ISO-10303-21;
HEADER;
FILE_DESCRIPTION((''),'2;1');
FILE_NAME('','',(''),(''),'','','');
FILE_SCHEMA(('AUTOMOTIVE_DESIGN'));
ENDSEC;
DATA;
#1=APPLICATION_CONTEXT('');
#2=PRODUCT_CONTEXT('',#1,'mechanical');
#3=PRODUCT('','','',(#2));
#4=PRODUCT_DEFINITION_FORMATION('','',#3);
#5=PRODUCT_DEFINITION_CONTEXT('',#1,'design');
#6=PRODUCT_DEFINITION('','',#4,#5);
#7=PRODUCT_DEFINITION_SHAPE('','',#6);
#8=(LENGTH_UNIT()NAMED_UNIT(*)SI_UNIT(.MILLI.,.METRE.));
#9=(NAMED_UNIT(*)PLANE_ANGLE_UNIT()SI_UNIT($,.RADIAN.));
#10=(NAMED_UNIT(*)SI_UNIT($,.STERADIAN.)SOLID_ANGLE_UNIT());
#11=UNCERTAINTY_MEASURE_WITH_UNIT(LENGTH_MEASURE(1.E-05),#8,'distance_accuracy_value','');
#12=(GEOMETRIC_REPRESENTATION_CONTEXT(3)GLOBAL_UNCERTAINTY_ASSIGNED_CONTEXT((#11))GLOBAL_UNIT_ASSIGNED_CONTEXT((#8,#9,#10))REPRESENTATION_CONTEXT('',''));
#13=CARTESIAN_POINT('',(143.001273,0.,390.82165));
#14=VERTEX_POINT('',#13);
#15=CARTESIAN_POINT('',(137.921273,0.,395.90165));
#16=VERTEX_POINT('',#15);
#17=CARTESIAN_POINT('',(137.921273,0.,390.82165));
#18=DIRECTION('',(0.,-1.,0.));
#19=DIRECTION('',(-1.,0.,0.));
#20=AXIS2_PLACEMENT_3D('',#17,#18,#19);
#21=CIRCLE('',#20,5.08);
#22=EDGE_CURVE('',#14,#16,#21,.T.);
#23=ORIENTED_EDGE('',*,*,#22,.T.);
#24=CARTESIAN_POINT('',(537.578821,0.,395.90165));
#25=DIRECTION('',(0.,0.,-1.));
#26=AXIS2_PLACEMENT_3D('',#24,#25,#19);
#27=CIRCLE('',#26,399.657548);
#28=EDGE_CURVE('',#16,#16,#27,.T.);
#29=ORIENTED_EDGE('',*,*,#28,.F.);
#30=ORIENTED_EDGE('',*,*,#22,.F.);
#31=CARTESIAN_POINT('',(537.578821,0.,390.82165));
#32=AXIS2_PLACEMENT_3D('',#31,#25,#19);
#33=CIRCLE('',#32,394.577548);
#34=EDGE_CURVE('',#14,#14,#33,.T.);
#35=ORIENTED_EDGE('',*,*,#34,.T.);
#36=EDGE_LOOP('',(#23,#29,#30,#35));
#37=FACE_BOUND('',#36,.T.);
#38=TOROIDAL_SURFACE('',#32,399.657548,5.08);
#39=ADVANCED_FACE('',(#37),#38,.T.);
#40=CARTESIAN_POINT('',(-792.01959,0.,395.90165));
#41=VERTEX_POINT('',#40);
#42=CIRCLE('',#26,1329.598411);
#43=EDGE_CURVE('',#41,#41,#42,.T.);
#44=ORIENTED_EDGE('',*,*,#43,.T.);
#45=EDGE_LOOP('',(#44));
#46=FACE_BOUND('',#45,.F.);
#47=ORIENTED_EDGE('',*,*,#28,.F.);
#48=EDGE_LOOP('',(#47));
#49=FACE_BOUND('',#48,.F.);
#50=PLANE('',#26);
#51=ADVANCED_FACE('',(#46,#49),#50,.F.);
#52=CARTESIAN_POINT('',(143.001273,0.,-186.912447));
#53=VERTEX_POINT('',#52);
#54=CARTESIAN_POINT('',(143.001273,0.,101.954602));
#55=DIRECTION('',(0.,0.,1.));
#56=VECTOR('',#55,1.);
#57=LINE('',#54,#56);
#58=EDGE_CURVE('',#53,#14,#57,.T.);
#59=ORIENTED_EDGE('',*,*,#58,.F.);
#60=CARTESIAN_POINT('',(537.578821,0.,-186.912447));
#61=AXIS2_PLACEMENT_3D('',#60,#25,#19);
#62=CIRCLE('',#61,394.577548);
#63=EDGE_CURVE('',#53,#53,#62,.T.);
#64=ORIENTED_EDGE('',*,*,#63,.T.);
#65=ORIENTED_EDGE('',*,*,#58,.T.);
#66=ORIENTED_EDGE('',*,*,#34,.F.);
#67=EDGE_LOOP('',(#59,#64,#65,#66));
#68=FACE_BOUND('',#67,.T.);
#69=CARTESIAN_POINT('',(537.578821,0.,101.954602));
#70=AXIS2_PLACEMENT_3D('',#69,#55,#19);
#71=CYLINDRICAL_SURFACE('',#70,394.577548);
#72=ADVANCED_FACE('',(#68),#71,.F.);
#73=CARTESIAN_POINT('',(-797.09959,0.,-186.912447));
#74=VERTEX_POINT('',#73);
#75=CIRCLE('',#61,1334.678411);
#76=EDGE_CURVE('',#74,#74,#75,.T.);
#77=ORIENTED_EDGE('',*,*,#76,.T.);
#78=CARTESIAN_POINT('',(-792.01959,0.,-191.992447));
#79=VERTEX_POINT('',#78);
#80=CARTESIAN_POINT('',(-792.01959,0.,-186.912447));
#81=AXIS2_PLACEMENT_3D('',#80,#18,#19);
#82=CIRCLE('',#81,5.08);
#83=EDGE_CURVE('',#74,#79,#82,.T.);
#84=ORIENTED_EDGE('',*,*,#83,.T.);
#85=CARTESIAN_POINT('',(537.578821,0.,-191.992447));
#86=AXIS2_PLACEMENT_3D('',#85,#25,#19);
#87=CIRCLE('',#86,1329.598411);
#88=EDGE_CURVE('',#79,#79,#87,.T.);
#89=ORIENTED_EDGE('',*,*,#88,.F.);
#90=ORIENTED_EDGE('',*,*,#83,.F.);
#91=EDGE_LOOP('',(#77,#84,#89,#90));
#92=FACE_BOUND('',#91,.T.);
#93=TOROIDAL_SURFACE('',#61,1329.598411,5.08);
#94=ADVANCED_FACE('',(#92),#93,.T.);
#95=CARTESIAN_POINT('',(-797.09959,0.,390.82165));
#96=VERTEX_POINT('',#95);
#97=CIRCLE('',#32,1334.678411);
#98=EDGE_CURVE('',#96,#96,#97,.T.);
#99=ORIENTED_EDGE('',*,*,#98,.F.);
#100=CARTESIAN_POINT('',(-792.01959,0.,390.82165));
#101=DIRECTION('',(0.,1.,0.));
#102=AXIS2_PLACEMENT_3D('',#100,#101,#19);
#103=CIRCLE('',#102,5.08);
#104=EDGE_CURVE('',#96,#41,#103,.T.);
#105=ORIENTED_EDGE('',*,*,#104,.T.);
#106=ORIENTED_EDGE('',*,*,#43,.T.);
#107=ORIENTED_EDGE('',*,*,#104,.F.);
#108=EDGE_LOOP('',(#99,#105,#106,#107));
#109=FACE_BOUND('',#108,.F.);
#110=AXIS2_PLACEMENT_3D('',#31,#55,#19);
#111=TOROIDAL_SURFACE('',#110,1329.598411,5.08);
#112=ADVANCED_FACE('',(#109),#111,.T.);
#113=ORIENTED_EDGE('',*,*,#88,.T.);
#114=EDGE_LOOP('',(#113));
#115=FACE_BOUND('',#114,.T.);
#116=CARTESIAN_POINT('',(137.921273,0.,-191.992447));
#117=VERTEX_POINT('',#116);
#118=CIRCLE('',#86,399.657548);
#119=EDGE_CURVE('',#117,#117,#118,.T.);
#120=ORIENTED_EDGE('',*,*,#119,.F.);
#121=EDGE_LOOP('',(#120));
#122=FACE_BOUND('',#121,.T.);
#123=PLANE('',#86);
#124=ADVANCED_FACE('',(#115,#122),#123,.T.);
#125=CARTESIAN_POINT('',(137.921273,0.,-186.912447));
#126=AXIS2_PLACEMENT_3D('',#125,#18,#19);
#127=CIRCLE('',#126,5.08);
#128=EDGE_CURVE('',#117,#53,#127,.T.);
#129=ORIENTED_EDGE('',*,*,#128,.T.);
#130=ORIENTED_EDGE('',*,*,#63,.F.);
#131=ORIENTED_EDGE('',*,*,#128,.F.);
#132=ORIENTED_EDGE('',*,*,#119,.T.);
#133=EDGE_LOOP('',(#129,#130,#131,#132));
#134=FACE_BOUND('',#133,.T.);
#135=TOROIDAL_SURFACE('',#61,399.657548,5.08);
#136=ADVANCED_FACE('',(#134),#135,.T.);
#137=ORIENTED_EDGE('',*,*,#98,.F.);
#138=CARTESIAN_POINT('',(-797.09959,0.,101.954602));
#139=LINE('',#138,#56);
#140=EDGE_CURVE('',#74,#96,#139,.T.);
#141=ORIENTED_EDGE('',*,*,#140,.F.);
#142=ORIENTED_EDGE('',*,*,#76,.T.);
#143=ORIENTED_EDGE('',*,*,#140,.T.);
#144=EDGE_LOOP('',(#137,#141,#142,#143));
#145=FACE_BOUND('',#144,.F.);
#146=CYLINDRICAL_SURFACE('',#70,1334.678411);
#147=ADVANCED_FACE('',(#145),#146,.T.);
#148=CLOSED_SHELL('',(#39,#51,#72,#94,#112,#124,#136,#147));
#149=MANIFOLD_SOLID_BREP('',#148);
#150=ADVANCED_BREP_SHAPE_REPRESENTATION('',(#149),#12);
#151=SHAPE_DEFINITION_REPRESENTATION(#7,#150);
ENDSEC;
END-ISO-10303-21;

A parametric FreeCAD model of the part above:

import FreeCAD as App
import Part
import Sketcher
Q = App.Units.Quantity

doc = App.newDocument("Part")
body = doc.addObject("PartDesign::Body", "Body")

# Sketch on XZ plane
sketch1 = body.newObject("Sketcher::SketchObject", "Sketch")
sketch1.AttachmentSupport = (doc.getObject("XZ_Plane"), [""])
sketch1.MapMode = "FlatFace"
sketch1.addGeometry(Part.LineSegment(App.Vector(-797, 396, 0), App.Vector(-797, -192, 0)), False)
sketch1.addGeometry(Part.LineSegment(App.Vector(-797, -192, 0), App.Vector(143, -192, 0)), False)
sketch1.addGeometry(Part.LineSegment(App.Vector(143, -192, 0), App.Vector(143, 396, 0)), False)
sketch1.addGeometry(Part.LineSegment(App.Vector(143, 396, 0), App.Vector(-797, 396, 0)), False)
sketch1.addGeometry(Part.LineSegment(App.Vector(538, 396, 0), App.Vector(538, -192, 0)), True)  # axis
sketch1.addConstraint(Sketcher.Constraint("Coincident", 0, 2, 1, 1))
sketch1.addConstraint(Sketcher.Constraint("Coincident", 1, 2, 2, 1))
sketch1.addConstraint(Sketcher.Constraint("Coincident", 2, 2, 3, 1))
sketch1.addConstraint(Sketcher.Constraint("Coincident", 3, 2, 0, 1))
sketch1.addConstraint(Sketcher.Constraint("Vertical", 0))
sketch1.addConstraint(Sketcher.Constraint("Horizontal", 1))
sketch1.addConstraint(Sketcher.Constraint("Vertical", 2))
sketch1.addConstraint(Sketcher.Constraint("Horizontal", 3))
sketch1.addConstraint(Sketcher.Constraint("Vertical", 4))
sketch1.addConstraint(Sketcher.Constraint("Horizontal", 3, 2, 4, 1))
sketch1.addConstraint(Sketcher.Constraint("Horizontal", 1, 2, 4, 2))
sketch1.addConstraint(Sketcher.Constraint("DistanceX", 1, 1, 1, 2, Q("940.100864 mm")))
sketch1.addConstraint(Sketcher.Constraint("DistanceY", 0, 2, 0, 1, Q("587.894097 mm")))
sketch1.addConstraint(Sketcher.Constraint("DistanceX", 0, 2, -1, 1, Q("797.09959 mm")))
sketch1.addConstraint(Sketcher.Constraint("DistanceY", -1, 1, 2, 2, Q("395.90165 mm")))
sketch1.addConstraint(Sketcher.Constraint("DistanceX", -1, 1, 4, 1, Q("537.578821 mm")))
revolution = body.newObject("PartDesign::Revolution", "Revolution")
revolution.Profile = sketch1
revolution.ReferenceAxis = (sketch1, ["Axis0"])
revolution.Angle = 360
doc.recompute()

fillet = body.newObject("PartDesign::Fillet", "Fillet")
fillet.Base = (revolution, ["Edge1"])
fillet.UseAllEdges = True
fillet.Radius = Q("0.2 in")

doc.recompute()
